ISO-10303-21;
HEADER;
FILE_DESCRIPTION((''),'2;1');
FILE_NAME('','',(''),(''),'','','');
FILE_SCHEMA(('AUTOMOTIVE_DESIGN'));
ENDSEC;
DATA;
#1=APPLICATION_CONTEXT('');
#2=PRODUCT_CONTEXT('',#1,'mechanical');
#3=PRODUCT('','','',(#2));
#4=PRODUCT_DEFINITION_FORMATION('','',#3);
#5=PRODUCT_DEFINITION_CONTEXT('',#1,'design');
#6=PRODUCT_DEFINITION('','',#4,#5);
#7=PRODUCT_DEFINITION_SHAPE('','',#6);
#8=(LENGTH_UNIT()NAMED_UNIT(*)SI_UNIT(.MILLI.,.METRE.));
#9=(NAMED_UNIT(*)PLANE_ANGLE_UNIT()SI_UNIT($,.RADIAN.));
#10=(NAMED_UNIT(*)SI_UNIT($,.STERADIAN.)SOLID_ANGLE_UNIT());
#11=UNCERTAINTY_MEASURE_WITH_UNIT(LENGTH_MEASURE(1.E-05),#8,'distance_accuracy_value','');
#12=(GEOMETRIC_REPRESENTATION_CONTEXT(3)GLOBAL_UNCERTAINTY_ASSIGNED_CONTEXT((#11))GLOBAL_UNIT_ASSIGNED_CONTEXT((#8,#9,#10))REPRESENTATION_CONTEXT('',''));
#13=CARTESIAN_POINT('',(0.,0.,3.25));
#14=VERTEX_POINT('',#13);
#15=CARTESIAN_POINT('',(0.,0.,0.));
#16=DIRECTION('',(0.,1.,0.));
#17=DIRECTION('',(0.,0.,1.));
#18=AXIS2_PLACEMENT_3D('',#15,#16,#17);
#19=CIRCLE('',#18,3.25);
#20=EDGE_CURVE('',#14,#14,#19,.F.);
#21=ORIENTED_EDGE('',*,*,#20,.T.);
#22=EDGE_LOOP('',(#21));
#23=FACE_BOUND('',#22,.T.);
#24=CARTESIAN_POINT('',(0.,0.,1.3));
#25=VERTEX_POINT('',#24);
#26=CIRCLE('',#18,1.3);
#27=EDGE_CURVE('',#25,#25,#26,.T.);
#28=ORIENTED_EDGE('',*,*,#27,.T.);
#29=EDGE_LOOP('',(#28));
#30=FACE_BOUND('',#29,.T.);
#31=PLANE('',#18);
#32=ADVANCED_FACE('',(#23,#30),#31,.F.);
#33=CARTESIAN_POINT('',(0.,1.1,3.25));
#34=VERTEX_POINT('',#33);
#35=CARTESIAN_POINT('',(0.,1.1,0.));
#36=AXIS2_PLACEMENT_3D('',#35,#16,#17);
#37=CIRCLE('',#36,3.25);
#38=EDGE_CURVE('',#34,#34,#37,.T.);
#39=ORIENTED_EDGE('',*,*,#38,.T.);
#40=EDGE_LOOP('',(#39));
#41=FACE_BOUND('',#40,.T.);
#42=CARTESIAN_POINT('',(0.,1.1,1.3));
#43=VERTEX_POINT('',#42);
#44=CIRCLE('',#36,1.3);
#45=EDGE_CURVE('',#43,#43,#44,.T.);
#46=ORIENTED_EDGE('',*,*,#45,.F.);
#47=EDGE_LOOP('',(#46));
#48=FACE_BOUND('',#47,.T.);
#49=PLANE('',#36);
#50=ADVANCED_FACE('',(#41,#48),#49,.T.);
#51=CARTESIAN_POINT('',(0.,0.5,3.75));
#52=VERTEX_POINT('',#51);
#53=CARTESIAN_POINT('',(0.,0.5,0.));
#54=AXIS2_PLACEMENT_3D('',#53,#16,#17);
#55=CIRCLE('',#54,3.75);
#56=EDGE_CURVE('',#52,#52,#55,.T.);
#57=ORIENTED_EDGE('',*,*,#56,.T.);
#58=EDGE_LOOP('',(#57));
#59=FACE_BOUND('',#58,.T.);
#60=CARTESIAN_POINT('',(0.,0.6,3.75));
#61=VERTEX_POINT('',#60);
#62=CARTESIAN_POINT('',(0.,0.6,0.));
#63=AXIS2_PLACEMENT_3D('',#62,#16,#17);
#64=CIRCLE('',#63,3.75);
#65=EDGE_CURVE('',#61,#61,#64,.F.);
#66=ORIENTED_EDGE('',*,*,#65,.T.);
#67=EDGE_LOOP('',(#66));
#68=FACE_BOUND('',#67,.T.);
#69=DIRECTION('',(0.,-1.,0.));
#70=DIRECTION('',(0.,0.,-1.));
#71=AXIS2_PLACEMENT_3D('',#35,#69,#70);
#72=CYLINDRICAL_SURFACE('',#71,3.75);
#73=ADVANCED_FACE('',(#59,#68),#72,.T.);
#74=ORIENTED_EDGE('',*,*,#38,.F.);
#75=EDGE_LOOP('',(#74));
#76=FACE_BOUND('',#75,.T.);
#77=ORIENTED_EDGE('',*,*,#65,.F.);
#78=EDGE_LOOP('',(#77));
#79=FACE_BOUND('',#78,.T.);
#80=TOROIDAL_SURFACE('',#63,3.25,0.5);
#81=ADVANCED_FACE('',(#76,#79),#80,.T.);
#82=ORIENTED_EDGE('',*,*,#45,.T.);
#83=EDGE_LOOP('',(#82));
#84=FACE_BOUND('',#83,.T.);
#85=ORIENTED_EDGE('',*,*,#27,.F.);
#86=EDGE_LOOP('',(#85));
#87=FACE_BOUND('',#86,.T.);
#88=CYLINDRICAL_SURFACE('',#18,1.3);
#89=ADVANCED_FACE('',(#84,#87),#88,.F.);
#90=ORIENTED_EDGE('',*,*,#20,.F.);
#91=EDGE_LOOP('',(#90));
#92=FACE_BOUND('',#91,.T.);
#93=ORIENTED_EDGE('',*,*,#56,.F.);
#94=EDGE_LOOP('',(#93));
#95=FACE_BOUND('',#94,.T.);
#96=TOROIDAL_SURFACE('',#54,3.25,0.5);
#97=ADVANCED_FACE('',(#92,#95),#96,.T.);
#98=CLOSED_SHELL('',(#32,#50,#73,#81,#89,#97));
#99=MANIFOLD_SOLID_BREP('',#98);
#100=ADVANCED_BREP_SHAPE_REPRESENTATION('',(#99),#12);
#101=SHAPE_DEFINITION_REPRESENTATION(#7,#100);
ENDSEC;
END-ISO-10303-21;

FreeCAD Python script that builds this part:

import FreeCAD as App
import Part
import Sketcher
from FreeCAD import Vector


def edges_at(feature, points):
    """Names of the edges that pass closest to the given points."""
    edges = feature.Shape.Edges
    near = lambda p: min(range(len(edges)), key=lambda i: edges[i].distToShape(Part.Vertex(*p))[0])
    return sorted({f"Edge{near(p) + 1}" for p in points})

doc = App.newDocument("Part")
body = doc.addObject("PartDesign::Body", "Body")

sketch1 = doc.addObject("Sketcher::SketchObject", "Sketch")
body.addObject(sketch1)
sketch1.AttachmentSupport = (doc.XZ_Plane, [""])
sketch1.MapMode = "FlatFace"
sketch1.addGeometry(Part.Circle(Vector(0, 0, 0), Vector(0, 0, 1), 3.75), False)
sketch1.addConstraint([
    Sketcher.Constraint("Coincident", 0, 3, -1, 1),
    Sketcher.Constraint("Diameter", 0, 7.5),
])
pad1 = doc.addObject("PartDesign::Pad", "Pad")
body.addObject(pad1)
pad1.Profile = sketch1
pad1.Length = 1.1
pad1.Reversed = True

sketch2 = doc.addObject("Sketcher::SketchObject", "Sketch001")
body.addObject(sketch2)
sketch2.AttachmentSupport = (doc.XZ_Plane, [""])
sketch2.MapMode = "FlatFace"
sketch2.AttachmentOffset = App.Placement(Vector(0, 0, -1.1), App.Rotation())
sketch2.addGeometry(Part.Circle(Vector(0, 0, 0), Vector(0, 0, 1), 1.3), False)
sketch2.addConstraint([
    Sketcher.Constraint("Coincident", 0, 3, -1, 1),
    Sketcher.Constraint("Diameter", 0, 2.6),
])
pocket1 = doc.addObject("PartDesign::Pocket", "Pocket")
body.addObject(pocket1)
pocket1.Profile = sketch2
pocket1.Type = "ThroughAll"
pocket1.Reversed = True
doc.recompute()

fillet = doc.addObject("PartDesign::Fillet", "Fillet")
body.addObject(fillet)
fillet.Base = (pocket1, edges_at(pocket1, [(-3.75, 0, 0), (-3.75, 1.1, 0)]))
fillet.Radius = 0.5

doc.recompute()
